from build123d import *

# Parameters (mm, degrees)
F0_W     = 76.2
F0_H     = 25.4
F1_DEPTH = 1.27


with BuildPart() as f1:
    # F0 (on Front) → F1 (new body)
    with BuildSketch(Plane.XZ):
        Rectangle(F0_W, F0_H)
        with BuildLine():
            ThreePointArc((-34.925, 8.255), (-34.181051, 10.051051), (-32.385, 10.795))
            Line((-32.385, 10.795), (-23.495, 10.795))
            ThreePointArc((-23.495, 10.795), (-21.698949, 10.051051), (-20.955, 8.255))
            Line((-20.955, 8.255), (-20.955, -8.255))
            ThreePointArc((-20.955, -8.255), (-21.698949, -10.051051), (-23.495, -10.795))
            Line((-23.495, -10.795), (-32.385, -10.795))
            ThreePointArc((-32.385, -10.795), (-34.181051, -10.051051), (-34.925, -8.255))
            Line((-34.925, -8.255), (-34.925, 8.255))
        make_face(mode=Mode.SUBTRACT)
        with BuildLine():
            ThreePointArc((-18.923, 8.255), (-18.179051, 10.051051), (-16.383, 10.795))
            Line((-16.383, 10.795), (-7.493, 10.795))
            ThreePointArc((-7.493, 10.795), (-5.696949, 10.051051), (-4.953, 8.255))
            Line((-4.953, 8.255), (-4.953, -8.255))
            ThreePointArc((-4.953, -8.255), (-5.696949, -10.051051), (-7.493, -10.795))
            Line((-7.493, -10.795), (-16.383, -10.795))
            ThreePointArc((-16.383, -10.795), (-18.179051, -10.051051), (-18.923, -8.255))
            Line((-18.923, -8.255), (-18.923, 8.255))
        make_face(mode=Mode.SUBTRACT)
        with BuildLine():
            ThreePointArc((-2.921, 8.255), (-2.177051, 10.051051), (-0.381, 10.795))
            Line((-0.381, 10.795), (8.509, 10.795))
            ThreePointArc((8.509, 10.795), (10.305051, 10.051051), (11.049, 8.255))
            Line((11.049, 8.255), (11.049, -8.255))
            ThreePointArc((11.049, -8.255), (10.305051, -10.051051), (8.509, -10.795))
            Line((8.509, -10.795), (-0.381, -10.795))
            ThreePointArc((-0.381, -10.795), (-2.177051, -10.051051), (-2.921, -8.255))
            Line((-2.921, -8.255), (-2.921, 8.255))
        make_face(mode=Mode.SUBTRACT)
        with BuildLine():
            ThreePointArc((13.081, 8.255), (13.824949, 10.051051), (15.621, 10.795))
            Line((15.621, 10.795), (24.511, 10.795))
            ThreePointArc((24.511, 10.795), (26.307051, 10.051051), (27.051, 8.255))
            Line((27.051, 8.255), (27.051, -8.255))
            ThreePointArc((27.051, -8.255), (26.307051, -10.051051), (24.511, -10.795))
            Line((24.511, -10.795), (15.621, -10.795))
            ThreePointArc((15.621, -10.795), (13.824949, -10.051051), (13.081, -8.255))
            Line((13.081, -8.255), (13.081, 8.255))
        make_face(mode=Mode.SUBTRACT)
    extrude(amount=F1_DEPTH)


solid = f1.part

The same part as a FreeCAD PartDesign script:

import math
import FreeCAD as App
import Part
import Sketcher

V = App.Vector
Q = App.Units.Quantity

doc = App.newDocument("Part")
body = doc.addObject("PartDesign::Body", "Body")

# Sketch on XZ plane
sketch1 = doc.addObject("Sketcher::SketchObject", "Sketch")
body.addObject(sketch1)
sketch1.AttachmentSupport = (doc.XZ_Plane, [""])
sketch1.MapMode = "FlatFace"
sketch1.addGeometry(Part.LineSegment(V(-38.1, 12.7, 0), V(-38.1, -12.7, 0)), False)
sketch1.addGeometry(Part.LineSegment(V(-38.1, -12.7, 0), V(38.1, -12.7, 0)), False)
sketch1.addGeometry(Part.LineSegment(V(38.1, -12.7, 0), V(38.1, 12.7, 0)), False)
sketch1.addGeometry(Part.LineSegment(V(38.1, 12.7, 0), V(-38.1, 12.7, 0)), False)
sketch1.addGeometry(Part.LineSegment(V(-34.9, -8.3, 0), V(-34.9, 8.3, 0)), False)
sketch1.addGeometry(Part.ArcOfCircle(Part.Circle(V(-32.4, 8.3, 0), V(0, 0, 1), 2.5), math.radians(90), math.radians(180)), False)
sketch1.addGeometry(Part.LineSegment(V(-32.4, 10.8, 0), V(-23.5, 10.8, 0)), False)
sketch1.addGeometry(Part.ArcOfCircle(Part.Circle(V(-23.5, 8.3, 0), V(0, 0, 1), 2.5), math.radians(0), math.radians(90)), False)
sketch1.addGeometry(Part.LineSegment(V(-21, 8.3, 0), V(-21, -8.3, 0)), False)
sketch1.addGeometry(Part.ArcOfCircle(Part.Circle(V(-23.5, -8.3, 0), V(0, 0, 1), 2.5), math.radians(-90), math.radians(0)), False)
sketch1.addGeometry(Part.LineSegment(V(-23.5, -10.8, 0), V(-32.4, -10.8, 0)), False)
sketch1.addGeometry(Part.ArcOfCircle(Part.Circle(V(-32.4, -8.3, 0), V(0, 0, 1), 2.5), math.radians(-180), math.radians(-90)), False)
sketch1.addGeometry(Part.LineSegment(V(-18.9, -8.3, 0), V(-18.9, 8.3, 0)), False)
sketch1.addGeometry(Part.ArcOfCircle(Part.Circle(V(-16.4, 8.3, 0), V(0, 0, 1), 2.5), math.radians(90), math.radians(180)), False)
sketch1.addGeometry(Part.LineSegment(V(-16.4, 10.8, 0), V(-7.5, 10.8, 0)), False)
sketch1.addGeometry(Part.ArcOfCircle(Part.Circle(V(-7.5, 8.3, 0), V(0, 0, 1), 2.5), math.radians(0), math.radians(90)), False)
sketch1.addGeometry(Part.LineSegment(V(-5, 8.3, 0), V(-5, -8.3, 0)), False)
sketch1.addGeometry(Part.ArcOfCircle(Part.Circle(V(-7.5, -8.3, 0), V(0, 0, 1), 2.5), math.radians(-90), math.radians(0)), False)
sketch1.addGeometry(Part.LineSegment(V(-7.5, -10.8, 0), V(-16.4, -10.8, 0)), False)
sketch1.addGeometry(Part.ArcOfCircle(Part.Circle(V(-16.4, -8.3, 0), V(0, 0, 1), 2.5), math.radians(-180), math.radians(-90)), False)
sketch1.addGeometry(Part.LineSegment(V(-2.9, -8.3, 0), V(-2.9, 8.3, 0)), False)
sketch1.addGeometry(Part.ArcOfCircle(Part.Circle(V(-0.4, 8.3, 0), V(0, 0, 1), 2.5), math.radians(90), math.radians(180)), False)
sketch1.addGeometry(Part.LineSegment(V(-0.4, 10.8, 0), V(8.5, 10.8, 0)), False)
sketch1.addGeometry(Part.ArcOfCircle(Part.Circle(V(8.5, 8.3, 0), V(0, 0, 1), 2.5), math.radians(0), math.radians(90)), False)
sketch1.addGeometry(Part.LineSegment(V(11, 8.3, 0), V(11, -8.3, 0)), False)
sketch1.addGeometry(Part.ArcOfCircle(Part.Circle(V(8.5, -8.3, 0), V(0, 0, 1), 2.5), math.radians(-90), math.radians(0)), False)
sketch1.addGeometry(Part.LineSegment(V(8.5, -10.8, 0), V(-0.4, -10.8, 0)), False)
sketch1.addGeometry(Part.ArcOfCircle(Part.Circle(V(-0.4, -8.3, 0), V(0, 0, 1), 2.5), math.radians(-180), math.radians(-90)), False)
sketch1.addGeometry(Part.LineSegment(V(13.1, -8.3, 0), V(13.1, 8.3, 0)), False)
sketch1.addGeometry(Part.ArcOfCircle(Part.Circle(V(15.6, 8.3, 0), V(0, 0, 1), 2.5), math.radians(90), math.radians(180)), False)
sketch1.addGeometry(Part.LineSegment(V(15.6, 10.8, 0), V(24.5, 10.8, 0)), False)
sketch1.addGeometry(Part.ArcOfCircle(Part.Circle(V(24.5, 8.3, 0), V(0, 0, 1), 2.5), math.radians(0), math.radians(90)), False)
sketch1.addGeometry(Part.LineSegment(V(27.1, 8.3, 0), V(27.1, -8.3, 0)), False)
sketch1.addGeometry(Part.ArcOfCircle(Part.Circle(V(24.5, -8.3, 0), V(0, 0, 1), 2.5), math.radians(-90), math.radians(0)), False)
sketch1.addGeometry(Part.LineSegment(V(24.5, -10.8, 0), V(15.6, -10.8, 0)), False)
sketch1.addGeometry(Part.ArcOfCircle(Part.Circle(V(15.6, -8.3, 0), V(0, 0, 1), 2.5), math.radians(-180), math.radians(-90)), False)
sketch1.addConstraint(Sketcher.Constraint("Coincident", 0, 2, 1, 1))
sketch1.addConstraint(Sketcher.Constraint("Coincident", 1, 2, 2, 1))
sketch1.addConstraint(Sketcher.Constraint("Coincident", 2, 2, 3, 1))
sketch1.addConstraint(Sketcher.Constraint("Coincident", 3, 2, 0, 1))
sketch1.addConstraint(Sketcher.Constraint("Tangent", 4, 2, 5, 2))
sketch1.addConstraint(Sketcher.Constraint("Tangent", 5, 1, 6, 1))
sketch1.addConstraint(Sketcher.Constraint("Tangent", 6, 2, 7, 2))
sketch1.addConstraint(Sketcher.Constraint("Tangent", 7, 1, 8, 1))
sketch1.addConstraint(Sketcher.Constraint("Tangent", 8, 2, 9, 2))
sketch1.addConstraint(Sketcher.Constraint("Tangent", 9, 1, 10, 1))
sketch1.addConstraint(Sketcher.Constraint("Tangent", 10, 2, 11, 2))
sketch1.addConstraint(Sketcher.Constraint("Tangent", 11, 1, 4, 1))
sketch1.addConstraint(Sketcher.Constraint("Tangent", 12, 2, 13, 2))
sketch1.addConstraint(Sketcher.Constraint("Tangent", 13, 1, 14, 1))
sketch1.addConstraint(Sketcher.Constraint("Tangent", 14, 2, 15, 2))
sketch1.addConstraint(Sketcher.Constraint("Tangent", 15, 1, 16, 1))
sketch1.addConstraint(Sketcher.Constraint("Tangent", 16, 2, 17, 2))
sketch1.addConstraint(Sketcher.Constraint("Tangent", 17, 1, 18, 1))
sketch1.addConstraint(Sketcher.Constraint("Tangent", 18, 2, 19, 2))
sketch1.addConstraint(Sketcher.Constraint("Tangent", 19, 1, 12, 1))
sketch1.addConstraint(Sketcher.Constraint("Tangent", 20, 2, 21, 2))
sketch1.addConstraint(Sketcher.Constraint("Tangent", 21, 1, 22, 1))
sketch1.addConstraint(Sketcher.Constraint("Tangent", 22, 2, 23, 2))
sketch1.addConstraint(Sketcher.Constraint("Tangent", 23, 1, 24, 1))
sketch1.addConstraint(Sketcher.Constraint("Tangent", 24, 2, 25, 2))
sketch1.addConstraint(Sketcher.Constraint("Tangent", 25, 1, 26, 1))
sketch1.addConstraint(Sketcher.Constraint("Tangent", 26, 2, 27, 2))
sketch1.addConstraint(Sketcher.Constraint("Tangent", 27, 1, 20, 1))
sketch1.addConstraint(Sketcher.Constraint("Tangent", 28, 2, 29, 2))
sketch1.addConstraint(Sketcher.Constraint("Tangent", 29, 1, 30, 1))
sketch1.addConstraint(Sketcher.Constraint("Tangent", 30, 2, 31, 2))
sketch1.addConstraint(Sketcher.Constraint("Tangent", 31, 1, 32, 1))
sketch1.addConstraint(Sketcher.Constraint("Tangent", 32, 2, 33, 2))
sketch1.addConstraint(Sketcher.Constraint("Tangent", 33, 1, 34, 1))
sketch1.addConstraint(Sketcher.Constraint("Tangent", 34, 2, 35, 2))
sketch1.addConstraint(Sketcher.Constraint("Tangent", 35, 1, 28, 1))
sketch1.addConstraint(Sketcher.Constraint("Vertical", 0))
sketch1.addConstraint(Sketcher.Constraint("Horizontal", 1))
sketch1.addConstraint(Sketcher.Constraint("Vertical", 2))
sketch1.addConstraint(Sketcher.Constraint("Horizontal", 3))
sketch1.addConstraint(Sketcher.Constraint("Vertical", 4))
sketch1.addConstraint(Sketcher.Constraint("Horizontal", 6))
sketch1.addConstraint(Sketcher.Constraint("Vertical", 8))
sketch1.addConstraint(Sketcher.Constraint("Horizontal", 10))
sketch1.addConstraint(Sketcher.Constraint("Vertical", 12))
sketch1.addConstraint(Sketcher.Constraint("Horizontal", 14))
sketch1.addConstraint(Sketcher.Constraint("Vertical", 16))
sketch1.addConstraint(Sketcher.Constraint("Horizontal", 18))
sketch1.addConstraint(Sketcher.Constraint("Vertical", 20))
sketch1.addConstraint(Sketcher.Constraint("Horizontal", 22))
sketch1.addConstraint(Sketcher.Constraint("Vertical", 24))
sketch1.addConstraint(Sketcher.Constraint("Horizontal", 26))
sketch1.addConstraint(Sketcher.Constraint("Vertical", 28))
sketch1.addConstraint(Sketcher.Constraint("Horizontal", 30))
sketch1.addConstraint(Sketcher.Constraint("Vertical", 32))
sketch1.addConstraint(Sketcher.Constraint("Horizontal", 34))
sketch1.addConstraint(Sketcher.Constraint("Equal", 5, 7))
sketch1.addConstraint(Sketcher.Constraint("Equal", 7, 9))
sketch1.addConstraint(Sketcher.Constraint("Equal", 9, 11))
sketch1.addConstraint(Sketcher.Constraint("Equal", 11, 13))
sketch1.addConstraint(Sketcher.Constraint("Equal", 13, 15))
sketch1.addConstraint(Sketcher.Constraint("Equal", 15, 17))
sketch1.addConstraint(Sketcher.Constraint("Equal", 17, 19))
sketch1.addConstraint(Sketcher.Constraint("Equal", 19, 21))
sketch1.addConstraint(Sketcher.Constraint("Equal", 21, 23))
sketch1.addConstraint(Sketcher.Constraint("Equal", 23, 25))
sketch1.addConstraint(Sketcher.Constraint("Equal", 25, 27))
sketch1.addConstraint(Sketcher.Constraint("Equal", 27, 29))
sketch1.addConstraint(Sketcher.Constraint("Equal", 29, 31))
sketch1.addConstraint(Sketcher.Constraint("Equal", 31, 33))
sketch1.addConstraint(Sketcher.Constraint("Equal", 33, 35))
sketch1.addConstraint(Sketcher.Constraint("Symmetric", 0, 2, 2, 2, -1, 1))
sketch1.addConstraint(Sketcher.Constraint("Horizontal", 7, 3, 13, 3))
sketch1.addConstraint(Sketcher.Constraint("Horizontal", 11, 3, 17, 3))
sketch1.addConstraint(Sketcher.Constraint("Horizontal", 15, 3, 21, 3))
sketch1.addConstraint(Sketcher.Constraint("Horizontal", 19, 3, 25, 3))
sketch1.addConstraint(Sketcher.Constraint("Horizontal", 23, 3, 29, 3))
sketch1.addConstraint(Sketcher.Constraint("Horizontal", 27, 3, 33, 3))
sketch1.addConstraint(Sketcher.Constraint("Equal", 10, 14))
sketch1.addConstraint(Sketcher.Constraint("Equal", 18, 22))
sketch1.addConstraint(Sketcher.Constraint("Equal", 26, 30))
sketch1.addConstraint(Sketcher.Constraint("Radius", 5, Q("0.1 in")))
sketch1.addConstraint(Sketcher.Constraint("DistanceX", 1, 1, 1, 2, Q("3 in")))
sketch1.addConstraint(Sketcher.Constraint("DistanceY", 0, 2, 0, 1, Q("1 in")))
sketch1.addConstraint(Sketcher.Constraint("DistanceX", 6, 1, 6, 2, Q("0.35 in")))
sketch1.addConstraint(Sketcher.Constraint("DistanceY", 4, 1, 4, 2, Q("0.65 in")))
sketch1.addConstraint(Sketcher.Constraint("DistanceX", 7, 3, 13, 3, Q("0.2800001 in")))
sketch1.addConstraint(Sketcher.Constraint("DistanceX", 15, 3, 21, 3, Q("0.2800001 in")))
sketch1.addConstraint(Sketcher.Constraint("DistanceX", 23, 3, 29, 3, Q("0.2800001 in")))
sketch1.addConstraint(Sketcher.Constraint("DistanceX", 5, 3, -1, 1, Q("1.275 in")))
sketch1.addConstraint(Sketcher.Constraint("DistanceY", -1, 1, 5, 3, Q("0.325 in")))
pad1 = doc.addObject("PartDesign::Pad", "Pad")
body.addObject(pad1)
pad1.Profile = sketch1
pad1.Length = Q("0.05 in")

doc.recompute()
